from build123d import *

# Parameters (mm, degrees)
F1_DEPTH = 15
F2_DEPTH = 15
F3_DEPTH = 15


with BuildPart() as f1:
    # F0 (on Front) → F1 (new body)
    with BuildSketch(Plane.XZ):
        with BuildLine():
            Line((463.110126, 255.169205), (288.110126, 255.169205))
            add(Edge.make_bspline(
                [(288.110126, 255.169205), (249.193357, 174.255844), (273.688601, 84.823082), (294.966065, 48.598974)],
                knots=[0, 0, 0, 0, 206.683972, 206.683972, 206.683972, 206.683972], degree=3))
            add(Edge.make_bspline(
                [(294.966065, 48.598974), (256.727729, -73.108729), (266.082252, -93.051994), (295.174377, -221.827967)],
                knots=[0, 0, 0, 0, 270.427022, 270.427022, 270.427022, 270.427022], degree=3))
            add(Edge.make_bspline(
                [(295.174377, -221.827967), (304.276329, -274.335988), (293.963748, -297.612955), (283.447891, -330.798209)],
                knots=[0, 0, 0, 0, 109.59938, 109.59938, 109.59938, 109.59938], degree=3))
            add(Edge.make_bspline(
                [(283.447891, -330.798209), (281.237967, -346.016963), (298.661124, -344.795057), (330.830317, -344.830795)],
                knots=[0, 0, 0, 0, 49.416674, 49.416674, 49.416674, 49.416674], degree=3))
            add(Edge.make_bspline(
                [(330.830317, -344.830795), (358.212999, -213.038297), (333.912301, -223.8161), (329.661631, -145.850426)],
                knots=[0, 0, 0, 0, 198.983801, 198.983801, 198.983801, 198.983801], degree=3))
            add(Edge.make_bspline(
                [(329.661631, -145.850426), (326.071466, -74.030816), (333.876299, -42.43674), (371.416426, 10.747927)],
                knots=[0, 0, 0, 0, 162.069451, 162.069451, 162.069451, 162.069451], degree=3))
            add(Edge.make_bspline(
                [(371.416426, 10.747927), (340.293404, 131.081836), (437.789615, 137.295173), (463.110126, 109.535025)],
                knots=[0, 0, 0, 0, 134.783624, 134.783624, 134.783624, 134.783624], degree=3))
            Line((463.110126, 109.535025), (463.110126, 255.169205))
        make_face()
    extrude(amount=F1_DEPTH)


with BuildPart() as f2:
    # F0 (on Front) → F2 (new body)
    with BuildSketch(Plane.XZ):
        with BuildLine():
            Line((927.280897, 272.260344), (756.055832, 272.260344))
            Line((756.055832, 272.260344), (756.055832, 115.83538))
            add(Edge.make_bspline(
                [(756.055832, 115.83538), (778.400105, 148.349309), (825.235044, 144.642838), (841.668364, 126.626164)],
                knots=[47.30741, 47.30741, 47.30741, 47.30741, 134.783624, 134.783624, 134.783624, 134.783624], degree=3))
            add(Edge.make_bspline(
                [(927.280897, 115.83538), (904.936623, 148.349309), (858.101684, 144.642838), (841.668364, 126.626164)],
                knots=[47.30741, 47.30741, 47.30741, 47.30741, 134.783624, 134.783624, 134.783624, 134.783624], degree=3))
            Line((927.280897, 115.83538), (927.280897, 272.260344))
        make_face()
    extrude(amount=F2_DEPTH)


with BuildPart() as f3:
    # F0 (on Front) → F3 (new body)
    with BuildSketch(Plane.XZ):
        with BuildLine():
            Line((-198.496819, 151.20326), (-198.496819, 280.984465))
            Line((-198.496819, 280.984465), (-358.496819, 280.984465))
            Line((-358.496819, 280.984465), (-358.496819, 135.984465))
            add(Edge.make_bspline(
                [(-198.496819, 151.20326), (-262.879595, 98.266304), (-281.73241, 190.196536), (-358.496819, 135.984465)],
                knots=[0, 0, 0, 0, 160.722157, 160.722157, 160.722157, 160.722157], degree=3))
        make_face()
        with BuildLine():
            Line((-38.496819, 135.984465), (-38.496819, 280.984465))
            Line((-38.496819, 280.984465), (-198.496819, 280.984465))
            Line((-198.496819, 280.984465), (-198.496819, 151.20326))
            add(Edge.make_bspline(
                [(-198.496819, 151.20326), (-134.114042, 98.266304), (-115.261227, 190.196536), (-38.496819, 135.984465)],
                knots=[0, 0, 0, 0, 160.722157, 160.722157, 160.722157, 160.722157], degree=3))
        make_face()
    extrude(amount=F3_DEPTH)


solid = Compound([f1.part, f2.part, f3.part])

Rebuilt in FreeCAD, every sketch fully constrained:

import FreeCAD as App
import Part
import Sketcher
from FreeCAD import Vector
Q = App.Units.Quantity

doc = App.newDocument("Part")
body = doc.addObject("PartDesign::Body", "Body")

sketch1 = doc.addObject("Sketcher::SketchObject", "Sketch")
body.addObject(sketch1)
sketch1.AttachmentSupport = (doc.XZ_Plane, [""])
sketch1.MapMode = "FlatFace"
sketch1.addGeometry([
    Part.LineSegment(Vector(463.110126, 255.169205, 0), Vector(288.110126, 255.169205, 0)),
    Part.BSplineCurve([Vector(288.110126, 255.169205, 0), Vector(249.193357, 174.255844, 0), Vector(273.688601, 84.823082, 0), Vector(294.966065, 48.598974, 0)], [4, 4], [0, 206.683972], False, 3, [1, 1, 1, 1], False),
    Part.BSplineCurve([Vector(294.966065, 48.598974, 0), Vector(256.727729, -73.108729, 0), Vector(266.082252, -93.051994, 0), Vector(295.174377, -221.827967, 0)], [4, 4], [0, 270.427022], False, 3, [1, 1, 1, 1], False),
    Part.BSplineCurve([Vector(295.174377, -221.827967, 0), Vector(304.276329, -274.335988, 0), Vector(293.963748, -297.612955, 0), Vector(283.447891, -330.798209, 0)], [4, 4], [0, 109.59938], False, 3, [1, 1, 1, 1], False),
    Part.BSplineCurve([Vector(283.447891, -330.798209, 0), Vector(281.237967, -346.016963, 0), Vector(298.661124, -344.795057, 0), Vector(330.830317, -344.830795, 0)], [4, 4], [0, 49.416674], False, 3, [1, 1, 1, 1], False),
    Part.BSplineCurve([Vector(330.830317, -344.830795, 0), Vector(358.212999, -213.038297, 0), Vector(333.912301, -223.8161, 0), Vector(329.661631, -145.850426, 0)], [4, 4], [0, 198.983801], False, 3, [1, 1, 1, 1], False),
    Part.BSplineCurve([Vector(329.661631, -145.850426, 0), Vector(326.071466, -74.030816, 0), Vector(333.876299, -42.43674, 0), Vector(371.416426, 10.747927, 0)], [4, 4], [0, 162.069451], False, 3, [1, 1, 1, 1], False),
    Part.BSplineCurve([Vector(371.416426, 10.747927, 0), Vector(340.293404, 131.081836, 0), Vector(437.789615, 137.295173, 0), Vector(463.110126, 109.535025, 0)], [4, 4], [0, 134.783624], False, 3, [1, 1, 1, 1], False),
    Part.LineSegment(Vector(463.110126, 109.535025, 0), Vector(463.110126, 255.169205, 0)),
], False)
sketch1.addConstraint([
    Sketcher.Constraint("Block", 1),
    Sketcher.Constraint("Block", 2),
    Sketcher.Constraint("Block", 3),
    Sketcher.Constraint("Block", 4),
    Sketcher.Constraint("Block", 5),
    Sketcher.Constraint("Block", 6),
    Sketcher.Constraint("Block", 7),
    Sketcher.Constraint("Coincident", 0, 2, 1, 1),
    Sketcher.Constraint("Coincident", 7, 2, 8, 1),
    Sketcher.Constraint("Coincident", 8, 2, 0, 1),
    Sketcher.Constraint("Horizontal", 0),
    Sketcher.Constraint("Vertical", 8),
])
pad1 = doc.addObject("PartDesign::Pad", "Pad")
body.addObject(pad1)
pad1.Profile = sketch1
pad1.Length = 15
body2 = doc.addObject("PartDesign::Body", "Body001")

sketch2 = doc.addObject("Sketcher::SketchObject", "Sketch001")
body2.addObject(sketch2)
sketch2.AttachmentSupport = (doc.getObject("XZ_Plane001"), [""])
sketch2.MapMode = "FlatFace"
sketch2.addGeometry([
    Part.LineSegment(Vector(927.280897, 272.260344, 0), Vector(756.055832, 272.260344, 0)),
    Part.LineSegment(Vector(756.055832, 272.260344, 0), Vector(756.055832, 115.83538, 0)),
    Part.BSplineCurve([Vector(756.055832, 115.83538, 0), Vector(778.400105, 148.349309, 0), Vector(825.235044, 144.642838, 0), Vector(841.668364, 126.626164, 0)], [4, 4], [47.30741, 134.783624], False, 3, [1, 1, 1, 1], False),
    Part.BSplineCurve([Vector(927.280897, 115.83538, 0), Vector(904.936623, 148.349309, 0), Vector(858.101684, 144.642838, 0), Vector(841.668364, 126.626164, 0)], [4, 4], [47.30741, 134.783624], False, 3, [1, 1, 1, 1], False),
    Part.LineSegment(Vector(927.280897, 115.83538, 0), Vector(927.280897, 272.260344, 0)),
], False)
sketch2.addConstraint([
    Sketcher.Constraint("Block", 2),
    Sketcher.Constraint("Block", 3),
    Sketcher.Constraint("Coincident", 0, 2, 1, 1),
    Sketcher.Constraint("Coincident", 1, 2, 2, 1),
    Sketcher.Constraint("Coincident", 3, 1, 4, 1),
    Sketcher.Constraint("Coincident", 4, 2, 0, 1),
    Sketcher.Constraint("Horizontal", 0),
    Sketcher.Constraint("Vertical", 1),
    Sketcher.Constraint("Vertical", 4),
    Sketcher.Constraint("DistanceY", 1, 2, 1, 1, Q("156.424964 mm")),
])
pad2 = doc.addObject("PartDesign::Pad", "Pad001")
body2.addObject(pad2)
pad2.Profile = sketch2
pad2.Length = 15
body3 = doc.addObject("PartDesign::Body", "Body002")

sketch3 = doc.addObject("Sketcher::SketchObject", "Sketch002")
body3.addObject(sketch3)
sketch3.AttachmentSupport = (doc.getObject("XZ_Plane002"), [""])
sketch3.MapMode = "FlatFace"
sketch3.addGeometry([
    Part.LineSegment(Vector(-358.496819, 280.984465, 0), Vector(-358.496819, 135.984465, 0)),
    Part.BSplineCurve([Vector(-198.496819, 151.20326, 0), Vector(-262.879595, 98.266304, 0), Vector(-281.73241, 190.196536, 0), Vector(-358.496819, 135.984465, 0)], [4, 4], [0, 160.722157], False, 3, [1, 1, 1, 1], False),
    Part.BSplineCurve([Vector(-198.496819, 151.20326, 0), Vector(-134.114042, 98.266304, 0), Vector(-115.261227, 190.196536, 0), Vector(-38.496819, 135.984465, 0)], [4, 4], [0, 160.722157], False, 3, [1, 1, 1, 1], False),
    Part.LineSegment(Vector(-38.496819, 135.984465, 0), Vector(-38.496819, 280.984465, 0)),
    Part.LineSegment(Vector(-38.496819, 280.984465, 0), Vector(-358.496819, 280.984465, 0)),
], False)
sketch3.addConstraint([
    Sketcher.Constraint("Block", 1),
    Sketcher.Constraint("Block", 2),
    Sketcher.Constraint("Coincident", 0, 2, 1, 2),
    Sketcher.Constraint("Coincident", 2, 2, 3, 1),
    Sketcher.Constraint("Coincident", 3, 2, 4, 1),
    Sketcher.Constraint("Coincident", 4, 2, 0, 1),
    Sketcher.Constraint("Vertical", 0),
    Sketcher.Constraint("Vertical", 3),
    Sketcher.Constraint("Horizontal", 4),
    Sketcher.Constraint("DistanceY", 0, 2, 0, 1, Q("145 mm")),
])
pad3 = doc.addObject("PartDesign::Pad", "Pad002")
body3.addObject(pad3)
pad3.Profile = sketch3
pad3.Length = 15

doc.recompute()
